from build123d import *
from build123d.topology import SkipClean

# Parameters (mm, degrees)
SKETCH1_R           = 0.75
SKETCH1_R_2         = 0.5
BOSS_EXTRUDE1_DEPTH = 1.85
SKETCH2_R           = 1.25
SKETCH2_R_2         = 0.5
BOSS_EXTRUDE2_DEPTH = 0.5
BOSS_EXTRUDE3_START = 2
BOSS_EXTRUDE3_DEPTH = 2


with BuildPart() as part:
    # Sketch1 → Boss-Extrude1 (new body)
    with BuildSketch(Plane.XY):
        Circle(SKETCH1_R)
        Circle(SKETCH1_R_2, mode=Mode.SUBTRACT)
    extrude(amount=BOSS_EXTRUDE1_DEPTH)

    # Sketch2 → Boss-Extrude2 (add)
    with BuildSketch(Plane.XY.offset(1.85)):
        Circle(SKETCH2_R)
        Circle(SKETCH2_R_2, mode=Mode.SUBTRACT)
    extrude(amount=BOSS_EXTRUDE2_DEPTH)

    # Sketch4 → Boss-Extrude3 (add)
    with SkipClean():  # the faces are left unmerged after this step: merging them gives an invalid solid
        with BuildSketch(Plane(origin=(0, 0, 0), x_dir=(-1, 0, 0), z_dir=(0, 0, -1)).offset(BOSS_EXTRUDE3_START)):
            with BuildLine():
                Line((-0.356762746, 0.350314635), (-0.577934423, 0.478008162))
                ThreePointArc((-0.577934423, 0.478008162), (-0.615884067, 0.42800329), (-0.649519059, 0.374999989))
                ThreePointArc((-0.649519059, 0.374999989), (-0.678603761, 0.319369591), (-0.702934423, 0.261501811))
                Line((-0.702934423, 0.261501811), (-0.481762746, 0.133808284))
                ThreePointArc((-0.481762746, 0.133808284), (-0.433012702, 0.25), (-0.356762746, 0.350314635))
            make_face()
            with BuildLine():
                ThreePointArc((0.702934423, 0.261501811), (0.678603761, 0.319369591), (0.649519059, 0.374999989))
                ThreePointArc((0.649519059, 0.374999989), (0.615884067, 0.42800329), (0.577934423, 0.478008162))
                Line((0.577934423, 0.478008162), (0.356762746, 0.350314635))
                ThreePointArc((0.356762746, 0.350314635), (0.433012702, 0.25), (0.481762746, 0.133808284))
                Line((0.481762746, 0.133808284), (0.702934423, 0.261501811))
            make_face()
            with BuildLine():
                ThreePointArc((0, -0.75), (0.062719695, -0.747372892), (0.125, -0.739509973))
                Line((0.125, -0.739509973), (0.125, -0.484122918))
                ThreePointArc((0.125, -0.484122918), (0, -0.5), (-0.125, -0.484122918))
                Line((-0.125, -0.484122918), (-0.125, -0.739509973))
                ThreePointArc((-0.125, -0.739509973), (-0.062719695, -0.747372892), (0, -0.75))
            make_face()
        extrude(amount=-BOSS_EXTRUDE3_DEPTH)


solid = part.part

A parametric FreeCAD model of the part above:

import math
import FreeCAD as App
import Part
import Sketcher
Q = App.Units.Quantity

doc = App.newDocument("Part")
body = doc.addObject("PartDesign::Body", "Body")

# Sketch on XY plane
sketch1 = body.newObject("Sketcher::SketchObject", "Sketch")
sketch1.AttachmentSupport = (doc.getObject("XY_Plane"), [""])
sketch1.MapMode = "FlatFace"
sketch1.addGeometry([
    Part.Circle(App.Vector(0, 0, 0), App.Vector(0, 0, 1), 0.8),
    Part.Circle(App.Vector(0, 0, 0), App.Vector(0, 0, 1), 0.5),
], False)
sketch1.addConstraint([
    Sketcher.Constraint("Coincident", 0, 3, -1, 1),
    Sketcher.Constraint("Coincident", 1, 3, -1, 1),
    Sketcher.Constraint("Diameter", 1, 1.0),
    Sketcher.Constraint("Diameter", 0, 1.5),
])
pad1 = body.newObject("PartDesign::Pad", "Pad")
pad1.Profile = sketch1
pad1.Length = 1.85

# Sketch on XY plane
sketch2 = body.newObject("Sketcher::SketchObject", "Sketch001")
sketch2.AttachmentSupport = (doc.getObject("XY_Plane"), [""])
sketch2.MapMode = "FlatFace"
sketch2.AttachmentOffset = App.Placement(App.Vector(0, 0, 1.85), App.Rotation())
sketch2.addGeometry([
    Part.Circle(App.Vector(0, 0, 0), App.Vector(0, 0, 1), 1.2),
    Part.Circle(App.Vector(0, 0, 0), App.Vector(0, 0, 1), 0.5),
], False)
sketch2.addConstraint([
    Sketcher.Constraint("Coincident", 0, 3, -1, 1),
    Sketcher.Constraint("Coincident", 1, 3, -1, 1),
    Sketcher.Constraint("Diameter", 1, 1.0),
    Sketcher.Constraint("Diameter", 0, 2.5),
])
pad2 = body.newObject("PartDesign::Pad", "Pad001")
pad2.Profile = sketch2
pad2.Length = 0.5

# Sketch on XY plane
sketch3 = body.newObject("Sketcher::SketchObject", "Sketch002")
sketch3.AttachmentSupport = (doc.getObject("XY_Plane"), [""])
sketch3.MapMode = "FlatFace"
sketch3.AttachmentOffset = App.Placement(App.Vector(0, 0, -2), App.Rotation())
sketch3.addGeometry([
    Part.LineSegment(App.Vector(0.36, 0.35, 0), App.Vector(0.58, 0.48, 0)),  # 0
    Part.ArcOfCircle(Part.Circle(App.Vector(0, 0, 0), App.Vector(0, 0, 1), 0.75), math.radians(30), math.radians(39.59)),  # 1
    Part.ArcOfCircle(Part.Circle(App.Vector(0, 0, 0), App.Vector(0, 0, 1), 0.75), math.radians(20.41), math.radians(30)),  # 2
    Part.LineSegment(App.Vector(0.7, 0.26, 0), App.Vector(0.48, 0.13, 0)),  # 3
    Part.ArcOfCircle(Part.Circle(App.Vector(0, 0, 0), App.Vector(0, 0, 1), 0.5), math.radians(16), math.radians(44)),  # 4
    Part.ArcOfCircle(Part.Circle(App.Vector(0, 0, 0), App.Vector(0, 0, 1), 0.75), math.radians(150), math.radians(159.59)),  # 5
    Part.ArcOfCircle(Part.Circle(App.Vector(0, 0, 0), App.Vector(0, 0, 1), 0.75), math.radians(140.41), math.radians(150)),  # 6
    Part.LineSegment(App.Vector(-0.58, 0.48, 0), App.Vector(-0.36, 0.35, 0)),  # 7
    Part.ArcOfCircle(Part.Circle(App.Vector(0, 0, 0), App.Vector(0, 0, 1), 0.5), math.radians(136), math.radians(164)),  # 8
    Part.LineSegment(App.Vector(-0.48, 0.13, 0), App.Vector(-0.7, 0.26, 0)),  # 9
    Part.ArcOfCircle(Part.Circle(App.Vector(0, 0, 0), App.Vector(0, 0, 1), 0.75), math.radians(-99.59), math.radians(-90)),  # 10
    Part.LineSegment(App.Vector(-0.12, -0.74, 0), App.Vector(-0.12, -0.48, 0)),  # 11
    Part.ArcOfCircle(Part.Circle(App.Vector(0, 0, 0), App.Vector(0, 0, 1), 0.5), math.radians(-104), math.radians(-76)),  # 12
    Part.LineSegment(App.Vector(0.12, -0.48, 0), App.Vector(0.12, -0.74, 0)),  # 13
    Part.ArcOfCircle(Part.Circle(App.Vector(0, 0, 0), App.Vector(0, 0, 1), 0.75), math.radians(-90), math.radians(-80.41)),  # 14
], False)
sketch3.addConstraint([
    Sketcher.Constraint("Coincident", 0, 2, 1, 2),
    Sketcher.Constraint("Tangent", 1, 1, 2, 2),
    Sketcher.Constraint("Coincident", 2, 1, 3, 1),
    Sketcher.Constraint("Coincident", 3, 2, 4, 1),
    Sketcher.Constraint("Coincident", 4, 2, 0, 1),
    Sketcher.Constraint("Tangent", 5, 1, 6, 2),
    Sketcher.Constraint("Coincident", 6, 1, 7, 1),
    Sketcher.Constraint("Coincident", 7, 2, 8, 1),
    Sketcher.Constraint("Coincident", 8, 2, 9, 1),
    Sketcher.Constraint("Coincident", 9, 2, 5, 2),
    Sketcher.Constraint("Coincident", 10, 1, 11, 1),
    Sketcher.Constraint("Coincident", 11, 2, 12, 1),
    Sketcher.Constraint("Coincident", 12, 2, 13, 1),
    Sketcher.Constraint("Coincident", 13, 2, 14, 2),
    Sketcher.Constraint("Tangent", 14, 1, 10, 2),
    Sketcher.Constraint("Vertical", 11),
    Sketcher.Constraint("Vertical", 13),
    Sketcher.Constraint("Coincident", 1, 3, -1, 1),
    Sketcher.Constraint("Coincident", 4, 3, -1, 1),
    Sketcher.Constraint("Coincident", 5, 3, -1, 1),
    Sketcher.Constraint("Coincident", 8, 3, -1, 1),
    Sketcher.Constraint("Coincident", 10, 3, -1, 1),
    Sketcher.Constraint("Coincident", 12, 3, -1, 1),
    Sketcher.Constraint("Equal", 1, 2),
    Sketcher.Constraint("Equal", 2, 5),
    Sketcher.Constraint("Equal", 5, 6),
    Sketcher.Constraint("Equal", 4, 8),
    Sketcher.Constraint("Equal", 6, 10),
    Sketcher.Constraint("Equal", 8, 12),
    Sketcher.Constraint("Equal", 10, 14),
    Sketcher.Constraint("PointOnObject", 14, 1, -2),
    Sketcher.Constraint("Parallel", 0, 3),
    Sketcher.Constraint("Parallel", 7, 9),
    Sketcher.Constraint("Horizontal", 1, 1, 5, 1),
    Sketcher.Constraint("Horizontal", 0, 2, 6, 1),
    Sketcher.Constraint("Horizontal", 4, 2, 7, 2),
    Sketcher.Constraint("Horizontal", 3, 2, 8, 2),
    Sketcher.Constraint("Horizontal", 11, 2, 12, 2),
    Sketcher.Constraint("Equal", 0, 3),
    Sketcher.Constraint("Radius", 4, 0.5),
    Sketcher.Constraint("Angle", 0, Q("30 deg")),
    Sketcher.Constraint("Radius", 1, 0.75),
    Sketcher.Constraint("DistanceX", 11, 2, 12, 2, 0.25),
    Sketcher.Constraint("DistanceY", -1, 1, 1, 1, 0.375),
    Sketcher.Constraint("DistanceX", 0, 2, 2, 1, 0.125),
])
pad3 = body.newObject("PartDesign::Pad", "Pad002")
pad3.Profile = sketch3
pad3.Length = 2

doc.recompute()
